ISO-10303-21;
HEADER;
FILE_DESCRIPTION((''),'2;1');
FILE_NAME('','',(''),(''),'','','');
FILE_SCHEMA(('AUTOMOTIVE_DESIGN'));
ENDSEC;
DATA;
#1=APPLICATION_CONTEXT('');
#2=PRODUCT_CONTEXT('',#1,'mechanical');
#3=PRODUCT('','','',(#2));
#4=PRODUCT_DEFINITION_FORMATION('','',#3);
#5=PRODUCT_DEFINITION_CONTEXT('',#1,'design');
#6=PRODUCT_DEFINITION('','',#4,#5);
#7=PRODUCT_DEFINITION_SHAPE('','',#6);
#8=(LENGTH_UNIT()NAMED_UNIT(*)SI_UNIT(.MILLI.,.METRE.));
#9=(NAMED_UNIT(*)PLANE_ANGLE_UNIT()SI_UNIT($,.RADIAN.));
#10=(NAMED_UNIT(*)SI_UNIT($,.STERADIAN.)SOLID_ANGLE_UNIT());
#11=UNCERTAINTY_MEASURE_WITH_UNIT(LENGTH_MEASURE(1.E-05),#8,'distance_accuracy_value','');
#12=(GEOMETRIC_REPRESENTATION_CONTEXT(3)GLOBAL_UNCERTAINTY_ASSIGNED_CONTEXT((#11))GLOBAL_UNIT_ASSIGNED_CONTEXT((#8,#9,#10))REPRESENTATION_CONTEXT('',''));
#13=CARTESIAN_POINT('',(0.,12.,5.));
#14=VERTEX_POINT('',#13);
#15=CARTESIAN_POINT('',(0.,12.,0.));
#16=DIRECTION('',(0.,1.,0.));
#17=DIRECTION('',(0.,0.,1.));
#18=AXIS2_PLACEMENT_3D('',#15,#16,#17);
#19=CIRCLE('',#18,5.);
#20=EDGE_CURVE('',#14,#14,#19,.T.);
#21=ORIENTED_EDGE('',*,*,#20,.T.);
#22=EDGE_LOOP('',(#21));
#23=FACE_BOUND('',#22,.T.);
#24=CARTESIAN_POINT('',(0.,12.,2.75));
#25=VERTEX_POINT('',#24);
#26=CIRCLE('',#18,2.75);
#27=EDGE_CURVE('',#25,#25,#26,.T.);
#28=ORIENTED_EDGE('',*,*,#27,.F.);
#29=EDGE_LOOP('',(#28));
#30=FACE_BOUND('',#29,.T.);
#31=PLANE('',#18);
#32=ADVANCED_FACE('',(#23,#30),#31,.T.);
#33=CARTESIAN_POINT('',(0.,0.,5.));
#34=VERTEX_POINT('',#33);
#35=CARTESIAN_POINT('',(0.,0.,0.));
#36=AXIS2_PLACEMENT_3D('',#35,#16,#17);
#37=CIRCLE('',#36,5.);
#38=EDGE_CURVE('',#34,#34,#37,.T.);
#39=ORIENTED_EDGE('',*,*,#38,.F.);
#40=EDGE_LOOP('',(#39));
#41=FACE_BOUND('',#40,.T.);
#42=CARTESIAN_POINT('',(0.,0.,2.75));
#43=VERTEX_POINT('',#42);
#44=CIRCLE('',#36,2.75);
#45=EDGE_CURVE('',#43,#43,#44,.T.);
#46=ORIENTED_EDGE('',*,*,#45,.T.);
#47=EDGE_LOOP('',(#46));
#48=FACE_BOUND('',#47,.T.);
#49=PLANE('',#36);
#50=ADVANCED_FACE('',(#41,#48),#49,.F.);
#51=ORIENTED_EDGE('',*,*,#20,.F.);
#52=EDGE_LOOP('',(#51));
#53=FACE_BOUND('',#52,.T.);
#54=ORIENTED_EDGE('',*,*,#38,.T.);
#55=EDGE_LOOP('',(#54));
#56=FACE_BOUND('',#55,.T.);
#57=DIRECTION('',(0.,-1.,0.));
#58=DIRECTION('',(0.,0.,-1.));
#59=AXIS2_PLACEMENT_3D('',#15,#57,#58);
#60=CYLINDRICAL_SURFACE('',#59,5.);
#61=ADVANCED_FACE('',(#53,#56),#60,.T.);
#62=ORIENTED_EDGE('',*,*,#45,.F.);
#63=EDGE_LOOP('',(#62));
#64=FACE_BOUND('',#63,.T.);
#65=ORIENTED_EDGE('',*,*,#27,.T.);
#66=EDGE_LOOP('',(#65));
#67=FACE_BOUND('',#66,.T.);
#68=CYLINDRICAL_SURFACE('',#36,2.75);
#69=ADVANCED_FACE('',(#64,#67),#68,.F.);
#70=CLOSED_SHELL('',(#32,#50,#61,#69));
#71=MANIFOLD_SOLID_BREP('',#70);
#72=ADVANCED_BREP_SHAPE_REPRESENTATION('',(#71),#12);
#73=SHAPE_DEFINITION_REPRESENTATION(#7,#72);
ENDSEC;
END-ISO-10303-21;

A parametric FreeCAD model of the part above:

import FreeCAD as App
import Part
import Sketcher
from FreeCAD import Vector
Q = App.Units.Quantity

doc = App.newDocument("Part")
body = doc.addObject("PartDesign::Body", "Body")

# Sketch on XZ plane
sketch1 = doc.addObject("Sketcher::SketchObject", "Sketch")
body.addObject(sketch1)
sketch1.AttachmentSupport = (doc.XZ_Plane, [""])
sketch1.MapMode = "FlatFace"
sketch1.addGeometry(Part.Circle(Vector(0, 0, 0), Vector(0, 0, 1), 5), False)
sketch1.addConstraint(Sketcher.Constraint("Coincident", 0, 3, -1, 1))
sketch1.addConstraint(Sketcher.Constraint("Diameter", 0, Q("10 mm")))
pad1 = doc.addObject("PartDesign::Pad", "Pad")
body.addObject(pad1)
pad1.Profile = sketch1
pad1.Length = 12
pad1.Reversed = True

# Sketch on XZ plane
sketch2 = doc.addObject("Sketcher::SketchObject", "Sketch001")
body.addObject(sketch2)
sketch2.AttachmentSupport = (doc.XZ_Plane, [""])
sketch2.MapMode = "FlatFace"
sketch2.AttachmentOffset = App.Placement(Vector(0, 0, -12), App.Rotation())
sketch2.addGeometry(Part.Circle(Vector(0, 0, 0), Vector(0, 0, 1), 2.75), False)
sketch2.addConstraint(Sketcher.Constraint("Coincident", 0, 3, -1, 1))
sketch2.addConstraint(Sketcher.Constraint("Diameter", 0, Q("5.5 mm")))
pocket1 = doc.addObject("PartDesign::Pocket", "Pocket")
body.addObject(pocket1)
pocket1.Profile = sketch2
pocket1.Type = "ThroughAll"
pocket1.Reversed = True

doc.recompute()
